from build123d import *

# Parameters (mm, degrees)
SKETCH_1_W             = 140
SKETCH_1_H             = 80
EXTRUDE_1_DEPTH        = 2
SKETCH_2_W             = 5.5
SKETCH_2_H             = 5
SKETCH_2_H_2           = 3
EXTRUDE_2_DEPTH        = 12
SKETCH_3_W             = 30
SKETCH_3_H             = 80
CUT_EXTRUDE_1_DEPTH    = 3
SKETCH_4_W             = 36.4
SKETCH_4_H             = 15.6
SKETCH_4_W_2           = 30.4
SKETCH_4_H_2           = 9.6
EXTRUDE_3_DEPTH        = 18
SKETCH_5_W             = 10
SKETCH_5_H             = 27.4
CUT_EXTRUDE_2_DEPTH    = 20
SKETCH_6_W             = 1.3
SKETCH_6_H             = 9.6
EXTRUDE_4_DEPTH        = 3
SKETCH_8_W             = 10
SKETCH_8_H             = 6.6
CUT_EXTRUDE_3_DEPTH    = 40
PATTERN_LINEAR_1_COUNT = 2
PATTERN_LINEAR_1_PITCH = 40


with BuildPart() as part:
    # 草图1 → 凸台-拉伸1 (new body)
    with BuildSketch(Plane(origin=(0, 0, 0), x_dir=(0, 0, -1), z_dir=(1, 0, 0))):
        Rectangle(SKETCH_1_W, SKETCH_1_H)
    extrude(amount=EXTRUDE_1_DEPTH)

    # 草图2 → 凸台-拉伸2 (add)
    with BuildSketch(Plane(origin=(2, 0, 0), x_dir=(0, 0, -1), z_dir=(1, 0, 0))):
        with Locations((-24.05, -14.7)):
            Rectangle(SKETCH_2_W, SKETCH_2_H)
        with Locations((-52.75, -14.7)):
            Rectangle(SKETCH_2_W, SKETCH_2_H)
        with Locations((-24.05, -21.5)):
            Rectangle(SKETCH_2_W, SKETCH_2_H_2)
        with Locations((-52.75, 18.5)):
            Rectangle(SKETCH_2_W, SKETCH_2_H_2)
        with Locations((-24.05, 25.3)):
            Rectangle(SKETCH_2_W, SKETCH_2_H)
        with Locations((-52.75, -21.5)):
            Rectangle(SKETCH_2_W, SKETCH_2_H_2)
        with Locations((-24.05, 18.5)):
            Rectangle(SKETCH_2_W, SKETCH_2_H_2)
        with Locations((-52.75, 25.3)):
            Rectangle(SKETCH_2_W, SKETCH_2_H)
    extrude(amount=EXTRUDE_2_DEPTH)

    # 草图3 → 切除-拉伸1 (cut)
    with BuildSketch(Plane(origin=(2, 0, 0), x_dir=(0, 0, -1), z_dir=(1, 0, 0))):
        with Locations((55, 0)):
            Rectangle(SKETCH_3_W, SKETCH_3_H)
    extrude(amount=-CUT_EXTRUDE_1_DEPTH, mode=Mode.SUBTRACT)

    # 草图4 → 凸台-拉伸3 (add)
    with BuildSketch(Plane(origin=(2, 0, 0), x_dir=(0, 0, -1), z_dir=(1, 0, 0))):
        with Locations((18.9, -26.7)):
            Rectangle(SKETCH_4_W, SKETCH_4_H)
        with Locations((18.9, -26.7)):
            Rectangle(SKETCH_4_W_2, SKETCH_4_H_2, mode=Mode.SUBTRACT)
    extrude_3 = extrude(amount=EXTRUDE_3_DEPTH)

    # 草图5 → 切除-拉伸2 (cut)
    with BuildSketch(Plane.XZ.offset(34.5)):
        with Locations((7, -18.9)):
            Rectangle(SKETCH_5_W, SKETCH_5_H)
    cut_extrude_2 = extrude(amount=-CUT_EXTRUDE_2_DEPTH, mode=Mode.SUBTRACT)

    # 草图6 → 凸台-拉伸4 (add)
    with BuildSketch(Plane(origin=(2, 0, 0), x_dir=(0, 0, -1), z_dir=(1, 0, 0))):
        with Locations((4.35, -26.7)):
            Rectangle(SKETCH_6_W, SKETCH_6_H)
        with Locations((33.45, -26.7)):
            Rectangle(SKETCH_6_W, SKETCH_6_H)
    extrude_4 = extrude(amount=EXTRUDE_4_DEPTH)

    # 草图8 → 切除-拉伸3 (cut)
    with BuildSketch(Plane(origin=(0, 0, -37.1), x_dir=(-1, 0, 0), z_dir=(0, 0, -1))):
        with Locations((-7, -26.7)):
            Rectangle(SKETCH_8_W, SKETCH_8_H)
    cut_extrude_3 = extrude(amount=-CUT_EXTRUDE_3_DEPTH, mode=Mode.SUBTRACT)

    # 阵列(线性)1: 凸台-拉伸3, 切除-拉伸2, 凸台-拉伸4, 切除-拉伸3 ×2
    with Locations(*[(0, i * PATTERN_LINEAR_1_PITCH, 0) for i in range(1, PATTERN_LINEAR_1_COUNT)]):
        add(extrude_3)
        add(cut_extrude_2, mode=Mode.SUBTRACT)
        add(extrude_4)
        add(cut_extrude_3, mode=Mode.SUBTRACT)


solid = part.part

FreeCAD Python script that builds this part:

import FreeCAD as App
import Part
import Sketcher

V = App.Vector


def add_polygon(sketch, points):
    """Adds a closed chain of lines whose ends are joined by coincident constraints."""
    first, n = sketch.GeometryCount, len(points)
    for a, b in zip(points, points[1:] + points[:1]):
        sketch.addGeometry(Part.LineSegment(App.Vector(*a, 0), App.Vector(*b, 0)), False)
    for i in range(n):
        sketch.addConstraint(Sketcher.Constraint("Coincident", first + i, 2, first + (i + 1) % n, 1))

doc = App.newDocument("Part")
body = doc.addObject("PartDesign::Body", "Body")

# Sketch on YZ plane
sketch1 = body.newObject("Sketcher::SketchObject", "Sketch")
sketch1.AttachmentSupport = (doc.getObject("YZ_Plane"), [""])
sketch1.MapMode = "FlatFace"
add_polygon(sketch1, [(40, 70), (-40, 70), (-40, -70), (40, -70)])  # lines 0-3
sketch1.addConstraint(Sketcher.Constraint("Horizontal", 0))
sketch1.addConstraint(Sketcher.Constraint("Vertical", 1))
sketch1.addConstraint(Sketcher.Constraint("Horizontal", 2))
sketch1.addConstraint(Sketcher.Constraint("Vertical", 3))
sketch1.addConstraint(Sketcher.Constraint("Symmetric", 0, 2, 2, 2, -1, 1))
sketch1.addConstraint(Sketcher.Constraint("DistanceX", 0, 2, 0, 1, 80.0))
sketch1.addConstraint(Sketcher.Constraint("DistanceY", 1, 2, 1, 1, 140.0))
pad1 = body.newObject("PartDesign::Pad", "Pad")
pad1.Profile = sketch1
pad1.Length = 2

# Sketch on YZ plane
sketch2 = body.newObject("Sketcher::SketchObject", "Sketch001")
sketch2.AttachmentSupport = (doc.getObject("YZ_Plane"), [""])
sketch2.MapMode = "FlatFace"
sketch2.AttachmentOffset = App.Placement(V(0, 0, 2), App.Rotation())
add_polygon(sketch2, [(-12.2, 26.8), (-17.2, 26.8), (-17.2, 21.3), (-12.2, 21.3)])  # lines 0-3
add_polygon(sketch2, [(-12.2, 55.5), (-17.2, 55.5), (-17.2, 50), (-12.2, 50)])  # lines 4-7
add_polygon(sketch2, [(-20, 26.8), (-23, 26.8), (-23, 21.3), (-20, 21.3)])  # lines 8-11
add_polygon(sketch2, [(20, 55.5), (17, 55.5), (17, 50), (20, 50)])  # lines 12-15
add_polygon(sketch2, [(27.8, 26.8), (22.8, 26.8), (22.8, 21.3), (27.8, 21.3)])  # lines 16-19
add_polygon(sketch2, [(-20, 55.5), (-23, 55.5), (-23, 50), (-20, 50)])  # lines 20-23
add_polygon(sketch2, [(20, 26.8), (17, 26.8), (17, 21.3), (20, 21.3)])  # lines 24-27
add_polygon(sketch2, [(27.8, 55.5), (22.8, 55.5), (22.8, 50), (27.8, 50)])  # lines 28-31
sketch2.addConstraint(Sketcher.Constraint("Horizontal", 0))
sketch2.addConstraint(Sketcher.Constraint("Vertical", 1))
sketch2.addConstraint(Sketcher.Constraint("Horizontal", 2))
sketch2.addConstraint(Sketcher.Constraint("Vertical", 3))
sketch2.addConstraint(Sketcher.Constraint("Horizontal", 4))
sketch2.addConstraint(Sketcher.Constraint("Vertical", 5))
sketch2.addConstraint(Sketcher.Constraint("Horizontal", 6))
sketch2.addConstraint(Sketcher.Constraint("Vertical", 7))
sketch2.addConstraint(Sketcher.Constraint("Horizontal", 8))
sketch2.addConstraint(Sketcher.Constraint("Vertical", 9))
sketch2.addConstraint(Sketcher.Constraint("Horizontal", 10))
sketch2.addConstraint(Sketcher.Constraint("Vertical", 11))
sketch2.addConstraint(Sketcher.Constraint("Horizontal", 12))
sketch2.addConstraint(Sketcher.Constraint("Vertical", 13))
sketch2.addConstraint(Sketcher.Constraint("Horizontal", 14))
sketch2.addConstraint(Sketcher.Constraint("Vertical", 15))
sketch2.addConstraint(Sketcher.Constraint("Horizontal", 16))
sketch2.addConstraint(Sketcher.Constraint("Vertical", 17))
sketch2.addConstraint(Sketcher.Constraint("Horizontal", 18))
sketch2.addConstraint(Sketcher.Constraint("Vertical", 19))
sketch2.addConstraint(Sketcher.Constraint("Horizontal", 20))
sketch2.addConstraint(Sketcher.Constraint("Vertical", 21))
sketch2.addConstraint(Sketcher.Constraint("Horizontal", 22))
sketch2.addConstraint(Sketcher.Constraint("Vertical", 23))
sketch2.addConstraint(Sketcher.Constraint("Horizontal", 24))
sketch2.addConstraint(Sketcher.Constraint("Vertical", 25))
sketch2.addConstraint(Sketcher.Constraint("Horizontal", 26))
sketch2.addConstraint(Sketcher.Constraint("Vertical", 27))
sketch2.addConstraint(Sketcher.Constraint("Horizontal", 28))
sketch2.addConstraint(Sketcher.Constraint("Vertical", 29))
sketch2.addConstraint(Sketcher.Constraint("Horizontal", 30))
sketch2.addConstraint(Sketcher.Constraint("Vertical", 31))
sketch2.addConstraint(Sketcher.Constraint("Symmetric", 14, 2, 22, 2, -2))
sketch2.addConstraint(Sketcher.Constraint("Symmetric", 10, 2, 26, 2, -2))
sketch2.addConstraint(Sketcher.Constraint("Horizontal", 3, 2, 8, 2))
sketch2.addConstraint(Sketcher.Constraint("Horizontal", 2, 2, 9, 2))
sketch2.addConstraint(Sketcher.Constraint("Horizontal", 7, 2, 12, 2))
sketch2.addConstraint(Sketcher.Constraint("Horizontal", 6, 2, 13, 2))
sketch2.addConstraint(Sketcher.Constraint("Horizontal", 11, 2, 16, 2))
sketch2.addConstraint(Sketcher.Constraint("Horizontal", 10, 2, 17, 2))
sketch2.addConstraint(Sketcher.Constraint("Horizontal", 15, 2, 20, 2))
sketch2.addConstraint(Sketcher.Constraint("Horizontal", 19, 2, 24, 2))
sketch2.addConstraint(Sketcher.Constraint("Horizontal", 23, 2, 28, 2))
sketch2.addConstraint(Sketcher.Constraint("Horizontal", 22, 2, 29, 2))
sketch2.addConstraint(Sketcher.Constraint("Vertical", 1, 2, 4, 2))
sketch2.addConstraint(Sketcher.Constraint("Vertical", 3, 2, 6, 2))
sketch2.addConstraint(Sketcher.Constraint("Vertical", 9, 2, 20, 2))
sketch2.addConstraint(Sketcher.Constraint("Vertical", 11, 2, 22, 2))
sketch2.addConstraint(Sketcher.Constraint("Vertical", 13, 2, 24, 2))
sketch2.addConstraint(Sketcher.Constraint("Vertical", 17, 2, 28, 2))
sketch2.addConstraint(Sketcher.Constraint("Vertical", 19, 2, 30, 2))
sketch2.addConstraint(Sketcher.Constraint("Equal", 10, 12))
sketch2.addConstraint(Sketcher.Constraint("Equal", 6, 16))
sketch2.addConstraint(Sketcher.Constraint("Equal", 3, 5))
sketch2.addConstraint(Sketcher.Constraint("DistanceX", 0, 2, 0, 1, 5.0))
sketch2.addConstraint(Sketcher.Constraint("DistanceX", 8, 2, 8, 1, 3.0))
sketch2.addConstraint(Sketcher.Constraint("DistanceY", 1, 2, 1, 1, 5.5))
sketch2.addConstraint(Sketcher.Constraint("DistanceY", -1, 1, 5, 2, 50.0))
sketch2.addConstraint(Sketcher.Constraint("DistanceX", 8, 2, -1, 1, 23.0))
sketch2.addConstraint(Sketcher.Constraint("DistanceX", 3, 2, 16, 2, 35.0))
sketch2.addConstraint(Sketcher.Constraint("DistanceX", 0, 2, -1, 1, 17.2))
sketch2.addConstraint(Sketcher.Constraint("DistanceY", -1, 1, 0, 2, 26.8))
pad2 = body.newObject("PartDesign::Pad", "Pad001")
pad2.Profile = sketch2
pad2.Length = 12

# Sketch on YZ plane
sketch3 = body.newObject("Sketcher::SketchObject", "Sketch002")
sketch3.AttachmentSupport = (doc.getObject("YZ_Plane"), [""])
sketch3.MapMode = "FlatFace"
sketch3.AttachmentOffset = App.Placement(V(0, 0, 2), App.Rotation())
add_polygon(sketch3, [(40, -40), (-40, -40), (-40, -70), (40, -70)])  # lines 0-3
sketch3.addConstraint(Sketcher.Constraint("Horizontal", 0))
sketch3.addConstraint(Sketcher.Constraint("Vertical", 1))
sketch3.addConstraint(Sketcher.Constraint("Horizontal", 2))
sketch3.addConstraint(Sketcher.Constraint("Vertical", 3))
sketch3.addConstraint(Sketcher.Constraint("DistanceX", 0, 2, 0, 1, 80.0))
sketch3.addConstraint(Sketcher.Constraint("DistanceY", 1, 2, 1, 1, 30.0))
sketch3.addConstraint(Sketcher.Constraint("DistanceX", 0, 2, -1, 1, 40.0))
sketch3.addConstraint(Sketcher.Constraint("DistanceY", 0, 2, -1, 1, 40.0))
pocket1 = body.newObject("PartDesign::Pocket", "Pocket")
pocket1.Profile = sketch3
pocket1.Length = 3

# Sketch on YZ plane
sketch4 = body.newObject("Sketcher::SketchObject", "Sketch003")
sketch4.AttachmentSupport = (doc.getObject("YZ_Plane"), [""])
sketch4.MapMode = "FlatFace"
sketch4.AttachmentOffset = App.Placement(V(0, 0, 2), App.Rotation())
add_polygon(sketch4, [(-19, -1), (-34, -1), (-34, -37), (-19, -37)])  # lines 0-3
add_polygon(sketch4, [(-32, -34), (-32, -4), (-22, -4), (-22, -34)])  # lines 4-7
sketch4.addConstraint(Sketcher.Constraint("Horizontal", 0))
sketch4.addConstraint(Sketcher.Constraint("Vertical", 1))
sketch4.addConstraint(Sketcher.Constraint("Horizontal", 2))
sketch4.addConstraint(Sketcher.Constraint("Vertical", 3))
sketch4.addConstraint(Sketcher.Constraint("Vertical", 4))
sketch4.addConstraint(Sketcher.Constraint("Horizontal", 5))
sketch4.addConstraint(Sketcher.Constraint("Vertical", 6))
sketch4.addConstraint(Sketcher.Constraint("Horizontal", 7))
sketch4.addConstraint(Sketcher.Constraint("DistanceX", 0, 2, 0, 1, 15.6))
sketch4.addConstraint(Sketcher.Constraint("DistanceX", 5, 1, 5, 2, 9.6))
sketch4.addConstraint(Sketcher.Constraint("DistanceY", 1, 2, 1, 1, 36.4))
sketch4.addConstraint(Sketcher.Constraint("DistanceY", 4, 1, 4, 2, 30.4))
sketch4.addConstraint(Sketcher.Constraint("DistanceX", 0, 2, 4, 2, 3.0))
sketch4.addConstraint(Sketcher.Constraint("DistanceY", 4, 2, 0, 2, 3.0))
sketch4.addConstraint(Sketcher.Constraint("DistanceX", 0, 2, -1, 1, 34.5))
sketch4.addConstraint(Sketcher.Constraint("DistanceY", 0, 2, -1, 1, 0.7))
pad3 = body.newObject("PartDesign::Pad", "Pad002")
pad3.Profile = sketch4
pad3.Length = 18

# Sketch on XZ plane
sketch5 = body.newObject("Sketcher::SketchObject", "Sketch004")
sketch5.AttachmentSupport = (doc.getObject("XZ_Plane"), [""])
sketch5.MapMode = "FlatFace"
sketch5.AttachmentOffset = App.Placement(V(0, 0, 34.5), App.Rotation())
add_polygon(sketch5, [(2, -5), (2, -33), (12, -33), (12, -5)])  # lines 0-3
sketch5.addConstraint(Sketcher.Constraint("Vertical", 0))
sketch5.addConstraint(Sketcher.Constraint("Horizontal", 1))
sketch5.addConstraint(Sketcher.Constraint("Vertical", 2))
sketch5.addConstraint(Sketcher.Constraint("Horizontal", 3))
sketch5.addConstraint(Sketcher.Constraint("DistanceX", 1, 1, 1, 2, 10.0))
sketch5.addConstraint(Sketcher.Constraint("DistanceY", 0, 2, 0, 1, 27.4))
sketch5.addConstraint(Sketcher.Constraint("DistanceX", -1, 1, 0, 2, 2.0))
sketch5.addConstraint(Sketcher.Constraint("DistanceY", 0, 2, -1, 1, 32.6))
pocket2 = body.newObject("PartDesign::Pocket", "Pocket001")
pocket2.Profile = sketch5
pocket2.Length = 20

# Sketch on YZ plane
sketch6 = body.newObject("Sketcher::SketchObject", "Sketch005")
sketch6.AttachmentSupport = (doc.getObject("YZ_Plane"), [""])
sketch6.MapMode = "FlatFace"
sketch6.AttachmentOffset = App.Placement(V(0, 0, 2), App.Rotation())
add_polygon(sketch6, [(-21.9, -3.7), (-31.5, -3.7), (-31.5, -5), (-21.9, -5)])  # lines 0-3
add_polygon(sketch6, [(-21.9, -32.8), (-31.5, -32.8), (-31.5, -34.1), (-21.9, -34.1)])  # lines 4-7
sketch6.addConstraint(Sketcher.Constraint("Horizontal", 0))
sketch6.addConstraint(Sketcher.Constraint("Vertical", 1))
sketch6.addConstraint(Sketcher.Constraint("Horizontal", 2))
sketch6.addConstraint(Sketcher.Constraint("Vertical", 3))
sketch6.addConstraint(Sketcher.Constraint("Horizontal", 4))
sketch6.addConstraint(Sketcher.Constraint("Vertical", 5))
sketch6.addConstraint(Sketcher.Constraint("Horizontal", 6))
sketch6.addConstraint(Sketcher.Constraint("Vertical", 7))
sketch6.addConstraint(Sketcher.Constraint("Vertical", 1, 2, 4, 2))
sketch6.addConstraint(Sketcher.Constraint("Vertical", 3, 2, 6, 2))
sketch6.addConstraint(Sketcher.Constraint("Equal", 3, 5))
sketch6.addConstraint(Sketcher.Constraint("DistanceX", 0, 2, 0, 1, 9.6))
sketch6.addConstraint(Sketcher.Constraint("DistanceY", 1, 2, 1, 1, 1.3))
sketch6.addConstraint(Sketcher.Constraint("DistanceY", 1, 2, -1, 1, 5.0))
sketch6.addConstraint(Sketcher.Constraint("DistanceX", 0, 2, -1, 1, 31.5))
sketch6.addConstraint(Sketcher.Constraint("DistanceY", 4, 2, -1, 1, 32.8))
pad4 = body.newObject("PartDesign::Pad", "Pad003")
pad4.Profile = sketch6
pad4.Length = 3

# Sketch on XY plane
sketch7 = body.newObject("Sketcher::SketchObject", "Sketch006")
sketch7.AttachmentSupport = (doc.getObject("XY_Plane"), [""])
sketch7.MapMode = "FlatFace"
sketch7.AttachmentOffset = App.Placement(V(0, 0, -37.1), App.Rotation())
add_polygon(sketch7, [(12, -23), (12, -30), (2, -30), (2, -23)])  # lines 0-3
sketch7.addConstraint(Sketcher.Constraint("Vertical", 0))
sketch7.addConstraint(Sketcher.Constraint("Horizontal", 1))
sketch7.addConstraint(Sketcher.Constraint("Vertical", 2))
sketch7.addConstraint(Sketcher.Constraint("Horizontal", 3))
sketch7.addConstraint(Sketcher.Constraint("DistanceX", 1, 2, 1, 1, 10.0))
sketch7.addConstraint(Sketcher.Constraint("DistanceY", 0, 2, 0, 1, 6.6))
sketch7.addConstraint(Sketcher.Constraint("DistanceX", -1, 1, 0, 2, 12.0))
sketch7.addConstraint(Sketcher.Constraint("DistanceY", 0, 2, -1, 1, 30.0))
pocket3 = body.newObject("PartDesign::Pocket", "Pocket002")
pocket3.Profile = sketch7
pocket3.Length = 40
pocket3.Reversed = True
doc.recompute()

linearpattern = body.newObject("PartDesign::LinearPattern", "LinearPattern")
linearpattern.Originals = [pad3, pocket2, pad4, pocket3]
linearpattern.Direction = (doc.getObject("Y_Axis"), [""])
linearpattern.Mode = "offset"
linearpattern.Offset = 40
linearpattern.Occurrences = 2
body.Tip = linearpattern

doc.recompute()
